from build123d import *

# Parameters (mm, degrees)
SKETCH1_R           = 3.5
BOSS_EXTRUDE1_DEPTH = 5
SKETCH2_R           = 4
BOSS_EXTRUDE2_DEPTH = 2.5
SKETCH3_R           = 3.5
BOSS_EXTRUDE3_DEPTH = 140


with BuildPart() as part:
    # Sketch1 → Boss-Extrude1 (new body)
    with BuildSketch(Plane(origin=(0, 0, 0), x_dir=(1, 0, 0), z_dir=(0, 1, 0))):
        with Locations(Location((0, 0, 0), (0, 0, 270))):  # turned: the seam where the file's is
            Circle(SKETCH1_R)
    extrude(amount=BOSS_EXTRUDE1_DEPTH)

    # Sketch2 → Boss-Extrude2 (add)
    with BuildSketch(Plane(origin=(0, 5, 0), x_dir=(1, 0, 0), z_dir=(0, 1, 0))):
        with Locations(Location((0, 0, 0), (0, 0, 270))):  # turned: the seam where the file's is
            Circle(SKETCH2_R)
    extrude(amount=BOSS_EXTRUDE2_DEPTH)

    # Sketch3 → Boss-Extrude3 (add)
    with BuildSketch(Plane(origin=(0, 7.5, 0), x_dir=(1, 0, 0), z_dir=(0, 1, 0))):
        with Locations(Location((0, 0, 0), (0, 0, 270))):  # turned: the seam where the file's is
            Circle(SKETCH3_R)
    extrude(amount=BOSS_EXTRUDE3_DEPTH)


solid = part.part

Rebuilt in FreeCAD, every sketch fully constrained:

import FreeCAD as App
import Part
import Sketcher
from FreeCAD import Vector

doc = App.newDocument("Part")
body = doc.addObject("PartDesign::Body", "Body")

sketch1 = body.newObject("Sketcher::SketchObject", "Sketch")
sketch1.AttachmentSupport = (doc.getObject("XZ_Plane"), [""])
sketch1.MapMode = "FlatFace"
sketch1.addGeometry(Part.Circle(Vector(0, 0, 0), Vector(0, 0, 1), 3.5), False)
sketch1.addConstraint([
    Sketcher.Constraint("Coincident", 0, 3, -1, 1),
    Sketcher.Constraint("Diameter", 0, 7.0),
])
pad1 = body.newObject("PartDesign::Pad", "Pad")
pad1.Profile = sketch1
pad1.Length = 5
pad1.Reversed = True

sketch2 = body.newObject("Sketcher::SketchObject", "Sketch001")
sketch2.AttachmentSupport = (doc.getObject("XZ_Plane"), [""])
sketch2.MapMode = "FlatFace"
sketch2.AttachmentOffset = App.Placement(Vector(0, 0, -5), App.Rotation())
sketch2.addGeometry(Part.Circle(Vector(0, 0, 0), Vector(0, 0, 1), 4), False)
sketch2.addConstraint([
    Sketcher.Constraint("Coincident", 0, 3, -1, 1),
    Sketcher.Constraint("Diameter", 0, 8.0),
])
pad2 = body.newObject("PartDesign::Pad", "Pad001")
pad2.Profile = sketch2
pad2.Length = 2.5
pad2.Reversed = True

sketch3 = body.newObject("Sketcher::SketchObject", "Sketch002")
sketch3.AttachmentSupport = (doc.getObject("XZ_Plane"), [""])
sketch3.MapMode = "FlatFace"
sketch3.AttachmentOffset = App.Placement(Vector(0, 0, -7.5), App.Rotation())
sketch3.addGeometry(Part.Circle(Vector(0, 0, 0), Vector(0, 0, 1), 3.5), False)
sketch3.addConstraint([
    Sketcher.Constraint("Coincident", 0, 3, -1, 1),
    Sketcher.Constraint("Diameter", 0, 7.0),
])
pad3 = body.newObject("PartDesign::Pad", "Pad002")
pad3.Profile = sketch3
pad3.Length = 140
pad3.Reversed = True

doc.recompute()
